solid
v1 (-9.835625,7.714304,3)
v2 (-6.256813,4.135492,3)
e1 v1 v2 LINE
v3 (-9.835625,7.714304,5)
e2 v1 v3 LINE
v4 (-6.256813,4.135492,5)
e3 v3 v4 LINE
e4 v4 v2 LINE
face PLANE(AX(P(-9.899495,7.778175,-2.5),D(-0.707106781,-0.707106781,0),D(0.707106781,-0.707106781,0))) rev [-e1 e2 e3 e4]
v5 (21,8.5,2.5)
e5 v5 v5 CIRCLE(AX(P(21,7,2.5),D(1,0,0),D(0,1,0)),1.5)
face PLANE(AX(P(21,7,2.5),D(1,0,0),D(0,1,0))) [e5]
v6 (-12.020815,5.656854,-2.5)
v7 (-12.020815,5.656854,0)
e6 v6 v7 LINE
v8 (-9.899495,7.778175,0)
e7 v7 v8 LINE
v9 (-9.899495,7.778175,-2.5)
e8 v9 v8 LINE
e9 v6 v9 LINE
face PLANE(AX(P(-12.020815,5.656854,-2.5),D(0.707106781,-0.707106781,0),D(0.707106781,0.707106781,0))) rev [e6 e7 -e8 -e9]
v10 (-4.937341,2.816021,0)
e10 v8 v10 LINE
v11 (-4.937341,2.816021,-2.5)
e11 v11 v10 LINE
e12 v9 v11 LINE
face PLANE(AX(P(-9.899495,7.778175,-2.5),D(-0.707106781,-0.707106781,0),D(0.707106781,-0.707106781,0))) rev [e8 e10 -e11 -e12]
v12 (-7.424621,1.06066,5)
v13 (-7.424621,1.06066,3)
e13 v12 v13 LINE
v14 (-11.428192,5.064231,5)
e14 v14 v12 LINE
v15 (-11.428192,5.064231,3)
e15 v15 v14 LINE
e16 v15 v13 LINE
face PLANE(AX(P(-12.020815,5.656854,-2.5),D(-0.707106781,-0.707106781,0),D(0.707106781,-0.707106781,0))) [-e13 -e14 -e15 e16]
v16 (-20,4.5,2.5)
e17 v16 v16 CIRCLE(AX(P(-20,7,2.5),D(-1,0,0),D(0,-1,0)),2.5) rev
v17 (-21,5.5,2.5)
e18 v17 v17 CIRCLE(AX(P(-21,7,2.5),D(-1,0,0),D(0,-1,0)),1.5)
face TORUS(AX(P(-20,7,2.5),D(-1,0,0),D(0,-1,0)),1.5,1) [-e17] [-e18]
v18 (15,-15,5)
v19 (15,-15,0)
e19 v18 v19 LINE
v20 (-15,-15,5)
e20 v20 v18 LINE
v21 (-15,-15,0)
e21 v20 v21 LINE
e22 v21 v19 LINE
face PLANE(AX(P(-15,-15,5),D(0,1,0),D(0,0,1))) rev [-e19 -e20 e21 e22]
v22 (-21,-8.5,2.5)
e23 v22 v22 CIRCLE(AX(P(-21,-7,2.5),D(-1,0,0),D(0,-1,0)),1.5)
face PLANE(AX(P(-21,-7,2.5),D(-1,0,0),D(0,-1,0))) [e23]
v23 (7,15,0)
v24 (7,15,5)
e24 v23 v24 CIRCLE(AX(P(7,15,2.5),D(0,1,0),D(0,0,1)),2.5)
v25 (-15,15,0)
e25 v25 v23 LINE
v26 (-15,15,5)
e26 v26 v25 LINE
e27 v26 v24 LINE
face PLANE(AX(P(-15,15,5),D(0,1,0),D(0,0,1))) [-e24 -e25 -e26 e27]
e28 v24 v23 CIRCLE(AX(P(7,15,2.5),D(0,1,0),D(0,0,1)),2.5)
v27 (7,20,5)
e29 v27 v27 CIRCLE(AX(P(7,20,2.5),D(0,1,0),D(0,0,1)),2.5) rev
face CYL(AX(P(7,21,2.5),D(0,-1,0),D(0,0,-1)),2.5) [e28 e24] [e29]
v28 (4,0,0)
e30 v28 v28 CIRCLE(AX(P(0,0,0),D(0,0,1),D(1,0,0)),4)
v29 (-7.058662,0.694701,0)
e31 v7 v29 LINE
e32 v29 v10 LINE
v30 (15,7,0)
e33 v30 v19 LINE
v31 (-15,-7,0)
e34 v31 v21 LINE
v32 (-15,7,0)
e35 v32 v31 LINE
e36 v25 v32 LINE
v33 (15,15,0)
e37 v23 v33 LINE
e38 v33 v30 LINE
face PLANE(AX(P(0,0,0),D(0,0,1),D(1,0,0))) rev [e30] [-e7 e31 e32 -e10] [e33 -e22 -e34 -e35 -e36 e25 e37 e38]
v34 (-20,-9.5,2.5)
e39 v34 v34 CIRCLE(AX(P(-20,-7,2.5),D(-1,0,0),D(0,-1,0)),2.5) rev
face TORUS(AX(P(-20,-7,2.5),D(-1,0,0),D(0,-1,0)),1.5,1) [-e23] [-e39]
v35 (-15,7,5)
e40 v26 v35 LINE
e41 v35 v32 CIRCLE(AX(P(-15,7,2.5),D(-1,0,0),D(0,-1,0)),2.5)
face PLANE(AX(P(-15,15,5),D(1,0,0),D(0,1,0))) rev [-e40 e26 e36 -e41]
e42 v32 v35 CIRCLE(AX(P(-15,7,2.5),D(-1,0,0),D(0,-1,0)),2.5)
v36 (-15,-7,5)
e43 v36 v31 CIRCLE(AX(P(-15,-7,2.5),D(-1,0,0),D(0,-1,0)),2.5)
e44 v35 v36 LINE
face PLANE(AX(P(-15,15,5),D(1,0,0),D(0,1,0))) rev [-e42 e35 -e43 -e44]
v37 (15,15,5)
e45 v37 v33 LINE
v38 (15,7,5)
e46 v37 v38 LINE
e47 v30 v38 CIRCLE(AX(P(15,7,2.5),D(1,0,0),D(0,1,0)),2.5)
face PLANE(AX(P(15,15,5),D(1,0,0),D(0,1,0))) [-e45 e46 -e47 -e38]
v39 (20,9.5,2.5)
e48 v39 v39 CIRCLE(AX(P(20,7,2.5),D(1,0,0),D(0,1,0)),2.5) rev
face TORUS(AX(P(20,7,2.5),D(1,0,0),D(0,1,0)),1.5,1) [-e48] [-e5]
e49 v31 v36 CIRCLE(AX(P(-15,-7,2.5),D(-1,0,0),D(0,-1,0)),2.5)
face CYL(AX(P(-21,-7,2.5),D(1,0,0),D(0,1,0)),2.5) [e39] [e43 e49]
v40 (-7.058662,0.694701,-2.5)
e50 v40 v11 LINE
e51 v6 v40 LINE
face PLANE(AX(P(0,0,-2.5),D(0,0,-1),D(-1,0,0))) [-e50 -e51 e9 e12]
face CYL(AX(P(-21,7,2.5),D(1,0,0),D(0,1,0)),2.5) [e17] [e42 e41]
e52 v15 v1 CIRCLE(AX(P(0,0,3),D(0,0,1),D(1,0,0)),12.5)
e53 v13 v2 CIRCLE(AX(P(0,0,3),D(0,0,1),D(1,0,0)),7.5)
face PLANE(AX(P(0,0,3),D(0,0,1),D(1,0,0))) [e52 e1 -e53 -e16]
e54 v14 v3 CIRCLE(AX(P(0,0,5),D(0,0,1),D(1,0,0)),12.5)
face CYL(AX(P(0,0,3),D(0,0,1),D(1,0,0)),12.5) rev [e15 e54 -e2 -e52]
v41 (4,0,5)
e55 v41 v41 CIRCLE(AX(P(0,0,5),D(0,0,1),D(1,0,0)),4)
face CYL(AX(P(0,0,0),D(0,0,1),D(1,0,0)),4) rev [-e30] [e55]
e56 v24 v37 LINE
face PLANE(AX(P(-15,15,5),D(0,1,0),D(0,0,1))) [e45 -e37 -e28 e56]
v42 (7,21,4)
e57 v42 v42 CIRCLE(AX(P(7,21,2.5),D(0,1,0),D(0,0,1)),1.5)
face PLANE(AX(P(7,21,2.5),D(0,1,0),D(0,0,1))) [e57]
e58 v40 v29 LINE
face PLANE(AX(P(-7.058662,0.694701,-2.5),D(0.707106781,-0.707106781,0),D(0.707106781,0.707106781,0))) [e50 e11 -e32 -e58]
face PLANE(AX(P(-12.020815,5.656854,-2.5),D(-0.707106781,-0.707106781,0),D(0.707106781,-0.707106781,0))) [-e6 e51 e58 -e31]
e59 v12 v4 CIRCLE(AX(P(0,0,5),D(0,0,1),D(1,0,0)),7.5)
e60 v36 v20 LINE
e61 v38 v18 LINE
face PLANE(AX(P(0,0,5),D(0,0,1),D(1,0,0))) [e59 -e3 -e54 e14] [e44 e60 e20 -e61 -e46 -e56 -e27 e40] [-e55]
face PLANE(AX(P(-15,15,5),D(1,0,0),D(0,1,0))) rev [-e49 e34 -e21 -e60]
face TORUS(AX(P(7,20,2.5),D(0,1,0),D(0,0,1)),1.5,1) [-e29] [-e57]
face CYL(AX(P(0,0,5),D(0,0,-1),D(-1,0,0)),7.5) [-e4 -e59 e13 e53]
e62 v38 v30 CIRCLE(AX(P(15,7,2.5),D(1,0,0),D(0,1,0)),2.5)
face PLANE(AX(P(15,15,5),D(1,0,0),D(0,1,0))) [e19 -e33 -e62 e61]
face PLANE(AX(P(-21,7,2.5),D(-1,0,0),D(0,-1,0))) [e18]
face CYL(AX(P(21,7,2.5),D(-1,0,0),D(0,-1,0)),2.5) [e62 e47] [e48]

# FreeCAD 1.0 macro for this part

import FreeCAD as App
import Part
import Sketcher
from FreeCAD import Vector
Q = App.Units.Quantity


def edges_at(feature, points):
    """Names of the edges that pass closest to the given points."""
    edges = feature.Shape.Edges
    near = lambda p: min(range(len(edges)), key=lambda i: edges[i].distToShape(Part.Vertex(*p))[0])
    return sorted({f"Edge{near(p) + 1}" for p in points})

doc = App.newDocument("Part")
body = doc.addObject("PartDesign::Body", "Body")

# Sketch on XY plane
sketch1 = body.newObject("Sketcher::SketchObject", "Sketch")
sketch1.AttachmentSupport = (doc.getObject("XY_Plane"), [""])
sketch1.MapMode = "FlatFace"
sketch1.addGeometry(Part.LineSegment(Vector(-15, 15, 0), Vector(-15, -15, 0)), False)
sketch1.addGeometry(Part.LineSegment(Vector(-15, -15, 0), Vector(15, -15, 0)), False)
sketch1.addGeometry(Part.LineSegment(Vector(15, -15, 0), Vector(15, 15, 0)), False)
sketch1.addGeometry(Part.LineSegment(Vector(15, 15, 0), Vector(-15, 15, 0)), False)
sketch1.addConstraint(Sketcher.Constraint("Coincident", 0, 2, 1, 1))
sketch1.addConstraint(Sketcher.Constraint("Coincident", 1, 2, 2, 1))
sketch1.addConstraint(Sketcher.Constraint("Coincident", 2, 2, 3, 1))
sketch1.addConstraint(Sketcher.Constraint("Coincident", 3, 2, 0, 1))
sketch1.addConstraint(Sketcher.Constraint("Vertical", 0))
sketch1.addConstraint(Sketcher.Constraint("Horizontal", 1))
sketch1.addConstraint(Sketcher.Constraint("Vertical", 2))
sketch1.addConstraint(Sketcher.Constraint("Horizontal", 3))
sketch1.addConstraint(Sketcher.Constraint("Symmetric", 0, 2, 2, 2, -1, 1))
sketch1.addConstraint(Sketcher.Constraint("Equal", 3, 0))
sketch1.addConstraint(Sketcher.Constraint("DistanceX", 1, 1, 1, 2, 30.0))
pad1 = body.newObject("PartDesign::Pad", "Pad")
pad1.Profile = sketch1
pad1.Length = 5

# Sketch on YZ plane
sketch2 = body.newObject("Sketcher::SketchObject", "Sketch001")
sketch2.AttachmentSupport = (doc.getObject("YZ_Plane"), [""])
sketch2.MapMode = "FlatFace"
sketch2.AttachmentOffset = App.Placement(Vector(0, 0, -15), App.Rotation())
sketch2.addGeometry(Part.Circle(Vector(7, 2.5, 0), Vector(0, 0, 1), 2.5), False)
sketch2.addGeometry(Part.Circle(Vector(-7, 2.5, 0), Vector(0, 0, 1), 2.5), False)
sketch2.addConstraint(Sketcher.Constraint("Equal", 0, 1))
sketch2.addConstraint(Sketcher.Constraint("Symmetric", 0, 3, 1, 3, -2))
sketch2.addConstraint(Sketcher.Constraint("Diameter", 0, 5.0))
sketch2.addConstraint(Sketcher.Constraint("DistanceX", -1, 1, 0, 3, 7.0))
sketch2.addConstraint(Sketcher.Constraint("DistanceY", -1, 1, 0, 3, 2.5))
pad2 = body.newObject("PartDesign::Pad", "Pad001")
pad2.Profile = sketch2
pad2.Length = 6
pad2.Reversed = True
doc.recompute()

fillet = body.newObject("PartDesign::Fillet", "Fillet")
fillet.Base = (pad2, edges_at(pad2, [(-21, 7, 0), (-21, -7, 0)]))
fillet.Radius = 1

# Sketch on YZ plane
sketch3 = body.newObject("Sketcher::SketchObject", "Sketch002")
sketch3.AttachmentSupport = (doc.getObject("YZ_Plane"), [""])
sketch3.MapMode = "FlatFace"
sketch3.AttachmentOffset = App.Placement(Vector(0, 0, 15), App.Rotation())
sketch3.addGeometry(Part.Circle(Vector(7, 2.5, 0), Vector(0, 0, 1), 2.5), False)
sketch3.addConstraint(Sketcher.Constraint("Diameter", 0, 5.0))
sketch3.addConstraint(Sketcher.Constraint("DistanceX", -1, 1, 0, 3, 7.0))
sketch3.addConstraint(Sketcher.Constraint("DistanceY", -1, 1, 0, 3, 2.5))
pad3 = body.newObject("PartDesign::Pad", "Pad002")
pad3.Profile = sketch3
pad3.Length = 6
doc.recompute()

fillet2 = body.newObject("PartDesign::Fillet", "Fillet001")
fillet2.Base = (pad3, edges_at(pad3, [(21, 7, 5)]))
fillet2.Radius = 1

# Sketch on XY plane
sketch4 = body.newObject("Sketcher::SketchObject", "Sketch003")
sketch4.AttachmentSupport = (doc.getObject("XY_Plane"), [""])
sketch4.MapMode = "FlatFace"
sketch4.AttachmentOffset = App.Placement(Vector(0, 0, 5), App.Rotation())
sketch4.addGeometry(Part.Circle(Vector(0, 0, 0), Vector(0, 0, 1), 12), False)
sketch4.addConstraint(Sketcher.Constraint("Coincident", 0, 3, -1, 1))
sketch4.addConstraint(Sketcher.Constraint("Diameter", 0, 25.0))
pocket1 = body.newObject("PartDesign::Pocket", "Pocket")
pocket1.Profile = sketch4
pocket1.Length = 2

# Sketch on XY plane
sketch5 = body.newObject("Sketcher::SketchObject", "Sketch004")
sketch5.AttachmentSupport = (doc.getObject("XY_Plane"), [""])
sketch5.MapMode = "FlatFace"
sketch5.AttachmentOffset = App.Placement(Vector(0, 0, 3), App.Rotation())
sketch5.addGeometry(Part.Circle(Vector(0, 0, 0), Vector(0, 0, 1), 8), False)
sketch5.addConstraint(Sketcher.Constraint("Coincident", 0, 3, -1, 1))
sketch5.addConstraint(Sketcher.Constraint("Diameter", 0, 15.0))
pad4 = body.newObject("PartDesign::Pad", "Pad003")
pad4.Profile = sketch5
pad4.Length = 2

# Sketch on XY plane
sketch6 = body.newObject("Sketcher::SketchObject", "Sketch005")
sketch6.AttachmentSupport = (doc.getObject("XY_Plane"), [""])
sketch6.MapMode = "FlatFace"
sketch6.AttachmentOffset = App.Placement(Vector(0, 0, 5), App.Rotation())
sketch6.addGeometry(Part.Circle(Vector(0, 0, 0), Vector(0, 0, 1), 4), False)
sketch6.addConstraint(Sketcher.Constraint("Coincident", 0, 3, -1, 1))
sketch6.addConstraint(Sketcher.Constraint("Diameter", 0, 8.0))
pocket2 = body.newObject("PartDesign::Pocket", "Pocket001")
pocket2.Profile = sketch6
pocket2.Type = "ThroughAll"

# Sketch on XZ plane
sketch7 = body.newObject("Sketcher::SketchObject", "Sketch006")
sketch7.AttachmentSupport = (doc.getObject("XZ_Plane"), [""])
sketch7.MapMode = "FlatFace"
sketch7.AttachmentOffset = App.Placement(Vector(0, 0, -15), App.Rotation())
sketch7.addGeometry(Part.Circle(Vector(7, 2.5, 0), Vector(0, 0, 1), 2.5), False)
sketch7.addConstraint(Sketcher.Constraint("Diameter", 0, 5.0))
sketch7.addConstraint(Sketcher.Constraint("DistanceX", -1, 1, 0, 3, 7.0))
sketch7.addConstraint(Sketcher.Constraint("DistanceY", -1, 1, 0, 3, 2.5))
pad5 = body.newObject("PartDesign::Pad", "Pad004")
pad5.Profile = sketch7
pad5.Length = 6
pad5.Reversed = True
doc.recompute()

fillet3 = body.newObject("PartDesign::Fillet", "Fillet002")
fillet3.Base = (pad5, edges_at(pad5, [(4.5, 21, 2.5)]))
fillet3.Radius = 1

# Sketch on XY plane
sketch8 = body.newObject("Sketcher::SketchObject", "Sketch007")
sketch8.AttachmentSupport = (doc.getObject("XY_Plane"), [""])
sketch8.MapMode = "FlatFace"
sketch8.AttachmentOffset = App.Placement(Vector(0, 0, 3), App.Rotation())
sketch8.addGeometry(Part.LineSegment(Vector(-9.9, 7.8, 0), Vector(-12, 5.7, 0)), False)
sketch8.addGeometry(Part.LineSegment(Vector(-12, 5.7, 0), Vector(-7.1, 0.7, 0)), False)
sketch8.addGeometry(Part.LineSegment(Vector(-7.1, 0.7, 0), Vector(-4.9, 2.8, 0)), False)
sketch8.addGeometry(Part.LineSegment(Vector(-4.9, 2.8, 0), Vector(-9.9, 7.8, 0)), False)
sketch8.addConstraint(Sketcher.Constraint("Coincident", 0, 2, 1, 1))
sketch8.addConstraint(Sketcher.Constraint("Coincident", 1, 2, 2, 1))
sketch8.addConstraint(Sketcher.Constraint("Coincident", 2, 2, 3, 1))
sketch8.addConstraint(Sketcher.Constraint("Coincident", 3, 2, 0, 1))
sketch8.addConstraint(Sketcher.Constraint("Perpendicular", 0, 1))
sketch8.addConstraint(Sketcher.Constraint("Perpendicular", 1, 2))
sketch8.addConstraint(Sketcher.Constraint("Perpendicular", 2, 3))
sketch8.addConstraint(Sketcher.Constraint("Angle", 0, Q("-135 deg")))
sketch8.addConstraint(Sketcher.Constraint("Distance", 0, 3.0))
sketch8.addConstraint(Sketcher.Constraint("DistanceY", -1, 1, 1, 2, 0.694701))
sketch8.addConstraint(Sketcher.Constraint("DistanceX", 1, 2, -1, 1, 7.058662))
sketch8.addConstraint(Sketcher.Constraint("Distance", 1, 7.017545))
pad6 = body.newObject("PartDesign::Pad", "Pad005")
pad6.Profile = sketch8
pad6.Type = "TwoLengths"
pad6.Length = 2
pad6.Length2 = 5.5

doc.recompute()
